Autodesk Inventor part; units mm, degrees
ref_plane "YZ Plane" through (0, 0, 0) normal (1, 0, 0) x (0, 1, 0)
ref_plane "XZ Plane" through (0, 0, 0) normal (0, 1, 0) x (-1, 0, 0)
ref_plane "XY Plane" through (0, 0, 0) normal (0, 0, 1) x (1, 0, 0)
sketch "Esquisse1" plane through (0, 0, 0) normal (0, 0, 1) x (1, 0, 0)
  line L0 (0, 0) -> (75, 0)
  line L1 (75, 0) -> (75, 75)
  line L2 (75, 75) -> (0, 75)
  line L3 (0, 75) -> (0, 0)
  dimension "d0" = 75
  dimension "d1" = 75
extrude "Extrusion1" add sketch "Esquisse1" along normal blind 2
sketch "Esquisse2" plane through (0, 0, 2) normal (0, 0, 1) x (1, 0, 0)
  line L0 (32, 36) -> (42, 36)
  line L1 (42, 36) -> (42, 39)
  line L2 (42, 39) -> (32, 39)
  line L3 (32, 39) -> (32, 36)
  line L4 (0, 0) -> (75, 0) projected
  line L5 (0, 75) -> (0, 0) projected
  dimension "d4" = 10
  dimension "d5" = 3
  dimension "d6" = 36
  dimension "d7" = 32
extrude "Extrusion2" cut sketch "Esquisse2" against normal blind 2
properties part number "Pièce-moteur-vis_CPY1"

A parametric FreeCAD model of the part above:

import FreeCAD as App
import Part
import Sketcher


def add_polygon(sketch, points):
    """Adds a closed chain of lines whose ends are joined by coincident constraints."""
    first, n = sketch.GeometryCount, len(points)
    for a, b in zip(points, points[1:] + points[:1]):
        sketch.addGeometry(Part.LineSegment(App.Vector(*a, 0), App.Vector(*b, 0)), False)
    for i in range(n):
        sketch.addConstraint(Sketcher.Constraint("Coincident", first + i, 2, first + (i + 1) % n, 1))

doc = App.newDocument("Part")
body = doc.addObject("PartDesign::Body", "Body")

sketch1 = doc.addObject("Sketcher::SketchObject", "Sketch")
body.addObject(sketch1)
sketch1.AttachmentSupport = (doc.XY_Plane, [""])
sketch1.MapMode = "FlatFace"
add_polygon(sketch1, [(0, 75), (0, 0), (75, 0), (75, 75)])
sketch1.addConstraint([
    Sketcher.Constraint("Vertical", 0),
    Sketcher.Constraint("Horizontal", 1),
    Sketcher.Constraint("Vertical", 2),
    Sketcher.Constraint("Horizontal", 3),
    Sketcher.Constraint("Coincident", 0, 2, -1, 1),
    Sketcher.Constraint("Equal", 3, 0),
    Sketcher.Constraint("DistanceX", 1, 1, 1, 2, 75.0),
])
pad1 = doc.addObject("PartDesign::Pad", "Pad")
body.addObject(pad1)
pad1.Profile = sketch1
pad1.Length = 2

sketch2 = doc.addObject("Sketcher::SketchObject", "Sketch001")
body.addObject(sketch2)
sketch2.AttachmentSupport = (doc.XY_Plane, [""])
sketch2.MapMode = "FlatFace"
sketch2.AttachmentOffset = App.Placement(App.Vector(0, 0, 2), App.Rotation())
add_polygon(sketch2, [(32, 39), (32, 36), (42, 36), (42, 39)])
sketch2.addConstraint([
    Sketcher.Constraint("Vertical", 0),
    Sketcher.Constraint("Horizontal", 1),
    Sketcher.Constraint("Vertical", 2),
    Sketcher.Constraint("Horizontal", 3),
    Sketcher.Constraint("DistanceX", 1, 1, 1, 2, 10.0),
    Sketcher.Constraint("DistanceY", 0, 2, 0, 1, 3.0),
    Sketcher.Constraint("DistanceX", -1, 1, 0, 2, 32.0),
    Sketcher.Constraint("DistanceY", -1, 1, 0, 2, 36.0),
])
pocket1 = doc.addObject("PartDesign::Pocket", "Pocket")
body.addObject(pocket1)
pocket1.Profile = sketch2
pocket1.Length = 2

doc.recompute()
